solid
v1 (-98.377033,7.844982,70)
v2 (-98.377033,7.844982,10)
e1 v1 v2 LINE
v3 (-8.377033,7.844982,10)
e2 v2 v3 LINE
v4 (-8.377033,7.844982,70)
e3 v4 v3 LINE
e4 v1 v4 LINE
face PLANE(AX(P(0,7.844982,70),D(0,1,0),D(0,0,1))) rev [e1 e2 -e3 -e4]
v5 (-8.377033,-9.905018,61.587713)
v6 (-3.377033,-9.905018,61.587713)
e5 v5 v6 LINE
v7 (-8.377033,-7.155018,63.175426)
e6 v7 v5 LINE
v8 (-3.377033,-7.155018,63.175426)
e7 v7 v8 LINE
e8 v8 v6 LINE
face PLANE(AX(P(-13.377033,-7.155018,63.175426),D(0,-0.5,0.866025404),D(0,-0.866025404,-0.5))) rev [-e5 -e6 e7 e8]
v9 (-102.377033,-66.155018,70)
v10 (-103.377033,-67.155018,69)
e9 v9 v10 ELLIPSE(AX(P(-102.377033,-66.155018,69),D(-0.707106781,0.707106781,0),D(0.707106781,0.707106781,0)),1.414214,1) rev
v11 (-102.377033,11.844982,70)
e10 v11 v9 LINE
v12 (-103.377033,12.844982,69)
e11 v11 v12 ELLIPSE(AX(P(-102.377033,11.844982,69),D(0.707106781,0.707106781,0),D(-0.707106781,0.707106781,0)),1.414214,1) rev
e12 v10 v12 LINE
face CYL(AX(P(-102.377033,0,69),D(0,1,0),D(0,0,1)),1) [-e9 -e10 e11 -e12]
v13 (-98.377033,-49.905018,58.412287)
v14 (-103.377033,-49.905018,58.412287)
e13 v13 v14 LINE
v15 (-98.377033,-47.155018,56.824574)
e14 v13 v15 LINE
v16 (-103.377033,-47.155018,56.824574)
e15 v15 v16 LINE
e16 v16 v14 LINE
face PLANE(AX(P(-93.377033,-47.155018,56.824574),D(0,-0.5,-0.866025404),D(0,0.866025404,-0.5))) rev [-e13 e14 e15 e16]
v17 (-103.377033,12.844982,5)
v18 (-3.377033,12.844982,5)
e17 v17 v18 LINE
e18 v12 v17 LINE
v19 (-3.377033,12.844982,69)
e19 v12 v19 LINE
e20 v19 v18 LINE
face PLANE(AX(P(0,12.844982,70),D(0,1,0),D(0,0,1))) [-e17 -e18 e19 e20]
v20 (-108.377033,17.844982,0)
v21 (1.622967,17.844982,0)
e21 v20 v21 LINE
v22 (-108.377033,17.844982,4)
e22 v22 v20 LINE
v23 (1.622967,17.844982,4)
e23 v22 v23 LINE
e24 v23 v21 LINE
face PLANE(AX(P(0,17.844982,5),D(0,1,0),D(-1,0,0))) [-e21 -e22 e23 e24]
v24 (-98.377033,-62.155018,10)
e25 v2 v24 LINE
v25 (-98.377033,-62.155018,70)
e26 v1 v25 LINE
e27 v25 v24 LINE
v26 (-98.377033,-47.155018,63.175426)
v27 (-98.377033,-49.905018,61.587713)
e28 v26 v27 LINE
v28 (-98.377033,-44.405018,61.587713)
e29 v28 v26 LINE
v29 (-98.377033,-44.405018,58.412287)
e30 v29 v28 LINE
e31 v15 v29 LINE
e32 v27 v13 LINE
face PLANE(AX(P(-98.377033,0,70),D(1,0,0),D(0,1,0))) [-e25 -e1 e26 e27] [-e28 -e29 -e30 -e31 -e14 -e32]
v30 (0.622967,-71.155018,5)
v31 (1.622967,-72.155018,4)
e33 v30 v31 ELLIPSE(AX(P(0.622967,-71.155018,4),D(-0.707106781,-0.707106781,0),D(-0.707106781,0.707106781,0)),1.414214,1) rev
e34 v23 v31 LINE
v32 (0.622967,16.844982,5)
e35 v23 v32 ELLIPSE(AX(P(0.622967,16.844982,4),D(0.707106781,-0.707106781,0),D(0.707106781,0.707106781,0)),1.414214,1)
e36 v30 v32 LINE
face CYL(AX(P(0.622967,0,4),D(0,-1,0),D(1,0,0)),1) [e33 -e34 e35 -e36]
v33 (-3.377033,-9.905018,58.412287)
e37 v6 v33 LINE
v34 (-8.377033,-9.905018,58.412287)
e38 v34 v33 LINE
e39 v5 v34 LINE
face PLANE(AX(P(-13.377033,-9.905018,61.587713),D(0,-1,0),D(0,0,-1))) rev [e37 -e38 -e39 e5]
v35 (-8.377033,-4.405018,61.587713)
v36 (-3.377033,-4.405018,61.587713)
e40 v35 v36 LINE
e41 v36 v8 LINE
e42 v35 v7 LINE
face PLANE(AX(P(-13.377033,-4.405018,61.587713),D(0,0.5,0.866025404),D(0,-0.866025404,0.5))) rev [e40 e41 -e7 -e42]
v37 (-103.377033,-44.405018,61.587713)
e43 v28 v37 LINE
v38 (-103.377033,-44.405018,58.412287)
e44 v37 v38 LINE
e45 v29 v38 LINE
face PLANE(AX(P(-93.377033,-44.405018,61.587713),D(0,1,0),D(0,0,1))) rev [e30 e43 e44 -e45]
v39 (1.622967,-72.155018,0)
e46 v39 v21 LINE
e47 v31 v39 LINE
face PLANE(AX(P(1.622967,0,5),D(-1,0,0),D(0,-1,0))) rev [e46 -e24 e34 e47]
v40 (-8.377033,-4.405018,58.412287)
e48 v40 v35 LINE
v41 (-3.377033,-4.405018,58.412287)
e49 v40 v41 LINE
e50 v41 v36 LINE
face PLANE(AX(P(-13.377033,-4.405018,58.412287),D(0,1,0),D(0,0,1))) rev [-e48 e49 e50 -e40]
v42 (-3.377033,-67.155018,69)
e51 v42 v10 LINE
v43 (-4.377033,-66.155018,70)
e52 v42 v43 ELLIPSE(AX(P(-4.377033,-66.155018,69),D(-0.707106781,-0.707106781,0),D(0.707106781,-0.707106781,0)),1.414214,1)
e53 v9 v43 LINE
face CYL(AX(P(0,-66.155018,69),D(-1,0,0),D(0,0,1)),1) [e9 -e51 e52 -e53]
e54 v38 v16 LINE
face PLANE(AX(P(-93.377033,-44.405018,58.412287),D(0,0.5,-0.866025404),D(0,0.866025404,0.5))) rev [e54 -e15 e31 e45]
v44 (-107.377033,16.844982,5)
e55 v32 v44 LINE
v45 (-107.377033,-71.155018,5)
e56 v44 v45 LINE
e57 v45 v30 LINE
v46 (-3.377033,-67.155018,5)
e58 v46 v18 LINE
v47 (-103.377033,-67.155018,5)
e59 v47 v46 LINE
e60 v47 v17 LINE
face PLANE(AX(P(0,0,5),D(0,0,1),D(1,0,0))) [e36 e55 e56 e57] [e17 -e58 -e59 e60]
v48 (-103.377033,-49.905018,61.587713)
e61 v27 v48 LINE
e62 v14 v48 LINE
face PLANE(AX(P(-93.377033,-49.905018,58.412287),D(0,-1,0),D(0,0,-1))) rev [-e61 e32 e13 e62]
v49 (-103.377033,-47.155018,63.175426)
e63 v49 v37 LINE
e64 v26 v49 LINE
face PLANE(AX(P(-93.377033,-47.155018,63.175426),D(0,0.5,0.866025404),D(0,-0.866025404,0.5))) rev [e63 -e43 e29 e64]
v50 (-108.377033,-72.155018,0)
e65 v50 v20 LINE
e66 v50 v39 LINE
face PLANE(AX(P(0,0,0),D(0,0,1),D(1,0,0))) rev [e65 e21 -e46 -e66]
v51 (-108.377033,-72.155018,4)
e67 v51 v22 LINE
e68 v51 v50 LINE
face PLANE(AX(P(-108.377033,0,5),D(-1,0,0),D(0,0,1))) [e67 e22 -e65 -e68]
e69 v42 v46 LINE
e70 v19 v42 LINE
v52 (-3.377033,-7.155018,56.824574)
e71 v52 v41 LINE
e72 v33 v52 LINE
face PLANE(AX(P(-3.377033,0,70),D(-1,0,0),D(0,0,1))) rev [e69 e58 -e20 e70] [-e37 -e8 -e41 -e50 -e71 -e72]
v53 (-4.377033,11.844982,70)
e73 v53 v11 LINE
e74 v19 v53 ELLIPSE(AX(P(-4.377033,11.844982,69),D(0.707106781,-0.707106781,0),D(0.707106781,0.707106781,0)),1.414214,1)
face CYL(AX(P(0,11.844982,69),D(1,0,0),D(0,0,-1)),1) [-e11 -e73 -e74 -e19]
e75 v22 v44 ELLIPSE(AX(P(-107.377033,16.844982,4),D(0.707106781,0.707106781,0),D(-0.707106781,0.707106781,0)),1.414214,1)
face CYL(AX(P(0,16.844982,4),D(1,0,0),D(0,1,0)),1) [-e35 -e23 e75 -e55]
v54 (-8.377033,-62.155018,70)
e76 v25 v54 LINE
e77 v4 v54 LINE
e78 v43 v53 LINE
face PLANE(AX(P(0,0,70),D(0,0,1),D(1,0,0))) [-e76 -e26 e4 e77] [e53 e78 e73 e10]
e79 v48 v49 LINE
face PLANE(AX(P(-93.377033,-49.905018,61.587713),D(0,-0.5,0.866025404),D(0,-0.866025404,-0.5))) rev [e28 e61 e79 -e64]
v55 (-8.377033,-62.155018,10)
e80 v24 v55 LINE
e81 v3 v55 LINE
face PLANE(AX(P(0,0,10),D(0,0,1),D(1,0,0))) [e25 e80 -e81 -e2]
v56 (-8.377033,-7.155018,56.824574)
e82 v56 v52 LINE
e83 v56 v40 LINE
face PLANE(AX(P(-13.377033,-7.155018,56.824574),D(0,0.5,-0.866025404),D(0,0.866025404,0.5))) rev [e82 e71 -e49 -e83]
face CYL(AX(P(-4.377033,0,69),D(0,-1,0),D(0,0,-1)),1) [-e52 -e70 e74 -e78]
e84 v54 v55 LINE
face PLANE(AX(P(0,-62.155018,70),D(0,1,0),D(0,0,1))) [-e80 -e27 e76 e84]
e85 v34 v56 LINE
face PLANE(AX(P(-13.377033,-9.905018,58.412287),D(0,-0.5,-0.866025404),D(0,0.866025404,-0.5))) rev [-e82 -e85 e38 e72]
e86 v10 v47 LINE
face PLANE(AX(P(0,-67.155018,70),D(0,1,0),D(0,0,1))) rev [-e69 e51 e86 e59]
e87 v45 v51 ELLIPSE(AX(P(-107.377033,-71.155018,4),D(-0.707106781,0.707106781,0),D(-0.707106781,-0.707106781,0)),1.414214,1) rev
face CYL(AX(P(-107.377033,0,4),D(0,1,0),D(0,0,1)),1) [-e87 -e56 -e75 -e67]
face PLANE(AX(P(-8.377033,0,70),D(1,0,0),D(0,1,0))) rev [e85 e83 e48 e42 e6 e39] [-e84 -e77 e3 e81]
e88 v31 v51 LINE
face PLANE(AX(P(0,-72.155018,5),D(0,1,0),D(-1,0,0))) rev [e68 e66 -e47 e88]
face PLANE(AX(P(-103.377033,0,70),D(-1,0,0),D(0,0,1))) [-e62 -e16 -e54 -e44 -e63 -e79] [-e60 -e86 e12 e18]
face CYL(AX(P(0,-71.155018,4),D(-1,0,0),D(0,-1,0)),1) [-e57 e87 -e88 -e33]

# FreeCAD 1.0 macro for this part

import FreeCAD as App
import Part
import Sketcher
Q = App.Units.Quantity


def edges_at(feature, points):
    """Names of the edges that pass closest to the given points."""
    edges = feature.Shape.Edges
    near = lambda p: min(range(len(edges)), key=lambda i: edges[i].distToShape(Part.Vertex(*p))[0])
    return sorted({f"Edge{near(p) + 1}" for p in points})

doc = App.newDocument("Part")
body = doc.addObject("PartDesign::Body", "Body")

# Sketch on XY plane
sketch1 = body.newObject("Sketcher::SketchObject", "Sketch")
sketch1.AttachmentSupport = (doc.getObject("XY_Plane"), [""])
sketch1.MapMode = "FlatFace"
sketch1.addGeometry(Part.LineSegment(App.Vector(-108, 18, 0), App.Vector(-108, -72, 0)), False)
sketch1.addGeometry(Part.LineSegment(App.Vector(-108, -72, 0), App.Vector(2, -72, 0)), False)
sketch1.addGeometry(Part.LineSegment(App.Vector(2, -72, 0), App.Vector(2, 18, 0)), False)
sketch1.addGeometry(Part.LineSegment(App.Vector(2, 18, 0), App.Vector(-108, 18, 0)), False)
sketch1.addGeometry(Part.LineSegment(App.Vector(-3, -67, 0), App.Vector(-103, -67, 0)), False)
sketch1.addGeometry(Part.LineSegment(App.Vector(-103, -67, 0), App.Vector(-103, 13, 0)), False)
sketch1.addGeometry(Part.LineSegment(App.Vector(-103, 13, 0), App.Vector(-3, 13, 0)), False)
sketch1.addGeometry(Part.LineSegment(App.Vector(-3, 13, 0), App.Vector(-3, -67, 0)), False)
sketch1.addConstraint(Sketcher.Constraint("Coincident", 0, 2, 1, 1))
sketch1.addConstraint(Sketcher.Constraint("Coincident", 1, 2, 2, 1))
sketch1.addConstraint(Sketcher.Constraint("Coincident", 2, 2, 3, 1))
sketch1.addConstraint(Sketcher.Constraint("Coincident", 3, 2, 0, 1))
sketch1.addConstraint(Sketcher.Constraint("Coincident", 4, 2, 5, 1))
sketch1.addConstraint(Sketcher.Constraint("Coincident", 5, 2, 6, 1))
sketch1.addConstraint(Sketcher.Constraint("Coincident", 6, 2, 7, 1))
sketch1.addConstraint(Sketcher.Constraint("Coincident", 7, 2, 4, 1))
sketch1.addConstraint(Sketcher.Constraint("Vertical", 0))
sketch1.addConstraint(Sketcher.Constraint("Horizontal", 1))
sketch1.addConstraint(Sketcher.Constraint("Vertical", 2))
sketch1.addConstraint(Sketcher.Constraint("Horizontal", 3))
sketch1.addConstraint(Sketcher.Constraint("Horizontal", 4))
sketch1.addConstraint(Sketcher.Constraint("Vertical", 5))
sketch1.addConstraint(Sketcher.Constraint("Horizontal", 6))
sketch1.addConstraint(Sketcher.Constraint("Vertical", 7))
sketch1.addConstraint(Sketcher.Constraint("DistanceX", 1, 1, 1, 2, Q("110 mm")))
sketch1.addConstraint(Sketcher.Constraint("DistanceX", 4, 2, 4, 1, Q("100 mm")))
sketch1.addConstraint(Sketcher.Constraint("DistanceY", 0, 2, 0, 1, Q("90 mm")))
sketch1.addConstraint(Sketcher.Constraint("DistanceY", 5, 1, 5, 2, Q("80 mm")))
sketch1.addConstraint(Sketcher.Constraint("DistanceX", 0, 2, 4, 2, Q("5 mm")))
sketch1.addConstraint(Sketcher.Constraint("DistanceY", 0, 2, 4, 2, Q("5 mm")))
sketch1.addConstraint(Sketcher.Constraint("DistanceY", 0, 2, -1, 1, Q("72.155018 mm")))
sketch1.addConstraint(Sketcher.Constraint("DistanceX", 0, 2, -1, 1, Q("108.377033 mm")))
pad1 = body.newObject("PartDesign::Pad", "Pad")
pad1.Profile = sketch1
pad1.Length = 5

# Sketch on XY plane
sketch2 = body.newObject("Sketcher::SketchObject", "Sketch001")
sketch2.AttachmentSupport = (doc.getObject("XY_Plane"), [""])
sketch2.MapMode = "FlatFace"
sketch2.addGeometry(Part.LineSegment(App.Vector(-103, 13, 0), App.Vector(-103, -67, 0)), False)
sketch2.addGeometry(Part.LineSegment(App.Vector(-103, -67, 0), App.Vector(-3, -67, 0)), False)
sketch2.addGeometry(Part.LineSegment(App.Vector(-3, -67, 0), App.Vector(-3, 13, 0)), False)
sketch2.addGeometry(Part.LineSegment(App.Vector(-3, 13, 0), App.Vector(-103, 13, 0)), False)
sketch2.addGeometry(Part.LineSegment(App.Vector(-8, -62, 0), App.Vector(-98, -62, 0)), False)
sketch2.addGeometry(Part.LineSegment(App.Vector(-98, -62, 0), App.Vector(-98, 8, 0)), False)
sketch2.addGeometry(Part.LineSegment(App.Vector(-98, 8, 0), App.Vector(-8, 8, 0)), False)
sketch2.addGeometry(Part.LineSegment(App.Vector(-8, 8, 0), App.Vector(-8, -62, 0)), False)
sketch2.addConstraint(Sketcher.Constraint("Coincident", 0, 2, 1, 1))
sketch2.addConstraint(Sketcher.Constraint("Coincident", 1, 2, 2, 1))
sketch2.addConstraint(Sketcher.Constraint("Coincident", 2, 2, 3, 1))
sketch2.addConstraint(Sketcher.Constraint("Coincident", 3, 2, 0, 1))
sketch2.addConstraint(Sketcher.Constraint("Coincident", 4, 2, 5, 1))
sketch2.addConstraint(Sketcher.Constraint("Coincident", 5, 2, 6, 1))
sketch2.addConstraint(Sketcher.Constraint("Coincident", 6, 2, 7, 1))
sketch2.addConstraint(Sketcher.Constraint("Coincident", 7, 2, 4, 1))
sketch2.addConstraint(Sketcher.Constraint("Vertical", 0))
sketch2.addConstraint(Sketcher.Constraint("Horizontal", 1))
sketch2.addConstraint(Sketcher.Constraint("Vertical", 2))
sketch2.addConstraint(Sketcher.Constraint("Horizontal", 3))
sketch2.addConstraint(Sketcher.Constraint("Horizontal", 4))
sketch2.addConstraint(Sketcher.Constraint("Vertical", 5))
sketch2.addConstraint(Sketcher.Constraint("Horizontal", 6))
sketch2.addConstraint(Sketcher.Constraint("Vertical", 7))
sketch2.addConstraint(Sketcher.Constraint("DistanceX", 1, 1, 1, 2, Q("100 mm")))
sketch2.addConstraint(Sketcher.Constraint("DistanceX", 4, 2, 4, 1, Q("90 mm")))
sketch2.addConstraint(Sketcher.Constraint("DistanceY", 0, 2, 0, 1, Q("80 mm")))
sketch2.addConstraint(Sketcher.Constraint("DistanceY", 5, 1, 5, 2, Q("70 mm")))
sketch2.addConstraint(Sketcher.Constraint("DistanceX", 0, 2, 4, 2, Q("5 mm")))
sketch2.addConstraint(Sketcher.Constraint("DistanceY", 0, 2, 4, 2, Q("5 mm")))
sketch2.addConstraint(Sketcher.Constraint("DistanceY", 0, 2, -1, 1, Q("67.155018 mm")))
sketch2.addConstraint(Sketcher.Constraint("DistanceX", 0, 2, -1, 1, Q("103.377033 mm")))
pad2 = body.newObject("PartDesign::Pad", "Pad001")
pad2.Profile = sketch2
pad2.Length = 70

# Sketch on XY plane
sketch3 = body.newObject("Sketcher::SketchObject", "Sketch002")
sketch3.AttachmentSupport = (doc.getObject("XY_Plane"), [""])
sketch3.MapMode = "FlatFace"
sketch3.addGeometry(Part.LineSegment(App.Vector(-98, 8, 0), App.Vector(-98, -62, 0)), False)
sketch3.addGeometry(Part.LineSegment(App.Vector(-98, -62, 0), App.Vector(-8, -62, 0)), False)
sketch3.addGeometry(Part.LineSegment(App.Vector(-8, -62, 0), App.Vector(-8, 8, 0)), False)
sketch3.addGeometry(Part.LineSegment(App.Vector(-8, 8, 0), App.Vector(-98, 8, 0)), False)
sketch3.addConstraint(Sketcher.Constraint("Coincident", 0, 2, 1, 1))
sketch3.addConstraint(Sketcher.Constraint("Coincident", 1, 2, 2, 1))
sketch3.addConstraint(Sketcher.Constraint("Coincident", 2, 2, 3, 1))
sketch3.addConstraint(Sketcher.Constraint("Coincident", 3, 2, 0, 1))
sketch3.addConstraint(Sketcher.Constraint("Vertical", 0))
sketch3.addConstraint(Sketcher.Constraint("Horizontal", 1))
sketch3.addConstraint(Sketcher.Constraint("Vertical", 2))
sketch3.addConstraint(Sketcher.Constraint("Horizontal", 3))
sketch3.addConstraint(Sketcher.Constraint("DistanceX", 1, 1, 1, 2, Q("90 mm")))
sketch3.addConstraint(Sketcher.Constraint("DistanceY", 0, 2, 0, 1, Q("70 mm")))
sketch3.addConstraint(Sketcher.Constraint("DistanceY", 0, 2, -1, 1, Q("62.155018 mm")))
sketch3.addConstraint(Sketcher.Constraint("DistanceX", 0, 2, -1, 1, Q("98.377033 mm")))
pad3 = body.newObject("PartDesign::Pad", "Pad002")
pad3.Profile = sketch3
pad3.Length = 10

# Sketch on YZ plane
sketch4 = body.newObject("Sketcher::SketchObject", "Sketch003")
sketch4.AttachmentSupport = (doc.getObject("YZ_Plane"), [""])
sketch4.MapMode = "FlatFace"
sketch4.AttachmentOffset = App.Placement(App.Vector(0, 0, -3.377033), App.Rotation())
sketch4.addGeometry(Part.LineSegment(App.Vector(-7.2, 56.8, 0), App.Vector(-4.4, 58.4, 0)), False)
sketch4.addGeometry(Part.LineSegment(App.Vector(-4.4, 58.4, 0), App.Vector(-4.4, 61.6, 0)), False)
sketch4.addGeometry(Part.LineSegment(App.Vector(-4.4, 61.6, 0), App.Vector(-7.2, 63.2, 0)), False)
sketch4.addGeometry(Part.LineSegment(App.Vector(-7.2, 63.2, 0), App.Vector(-9.9, 61.6, 0)), False)
sketch4.addGeometry(Part.LineSegment(App.Vector(-9.9, 61.6, 0), App.Vector(-9.9, 58.4, 0)), False)
sketch4.addGeometry(Part.LineSegment(App.Vector(-9.9, 58.4, 0), App.Vector(-7.2, 56.8, 0)), False)
sketch4.addConstraint(Sketcher.Constraint("Coincident", 0, 2, 1, 1))
sketch4.addConstraint(Sketcher.Constraint("Coincident", 1, 2, 2, 1))
sketch4.addConstraint(Sketcher.Constraint("Coincident", 2, 2, 3, 1))
sketch4.addConstraint(Sketcher.Constraint("Coincident", 3, 2, 4, 1))
sketch4.addConstraint(Sketcher.Constraint("Coincident", 4, 2, 5, 1))
sketch4.addConstraint(Sketcher.Constraint("Coincident", 5, 2, 0, 1))
sketch4.addConstraint(Sketcher.Constraint("Vertical", 1))
sketch4.addConstraint(Sketcher.Constraint("Vertical", 4))
sketch4.addConstraint(Sketcher.Constraint("Parallel", 0, 3))
sketch4.addConstraint(Sketcher.Constraint("Parallel", 2, 5))
sketch4.addConstraint(Sketcher.Constraint("Horizontal", 1, 2, 3, 2))
sketch4.addConstraint(Sketcher.Constraint("Horizontal", 0, 2, 4, 2))
sketch4.addConstraint(Sketcher.Constraint("Vertical", 2, 2, 5, 2))
sketch4.addConstraint(Sketcher.Constraint("Angle", 0, Q("30 deg")))
sketch4.addConstraint(Sketcher.Constraint("DistanceX", 3, 2, 1, 2, Q("5.5 mm")))
sketch4.addConstraint(Sketcher.Constraint("DistanceY", 1, 1, 1, 2, Q("3.175426 mm")))
sketch4.addConstraint(Sketcher.Constraint("DistanceX", 0, 2, -1, 1, Q("4.405018 mm")))
sketch4.addConstraint(Sketcher.Constraint("DistanceY", -1, 1, 0, 2, Q("58.412287 mm")))
pocket1 = body.newObject("PartDesign::Pocket", "Pocket")
pocket1.Profile = sketch4
pocket1.Length = 10

# Sketch on YZ plane
sketch5 = body.newObject("Sketcher::SketchObject", "Sketch004")
sketch5.AttachmentSupport = (doc.getObject("YZ_Plane"), [""])
sketch5.MapMode = "FlatFace"
sketch5.AttachmentOffset = App.Placement(App.Vector(0, 0, -103.377033), App.Rotation())
sketch5.addGeometry(Part.LineSegment(App.Vector(-47.2, 63.2, 0), App.Vector(-44.4, 61.6, 0)), False)
sketch5.addGeometry(Part.LineSegment(App.Vector(-44.4, 61.6, 0), App.Vector(-44.4, 58.4, 0)), False)
sketch5.addGeometry(Part.LineSegment(App.Vector(-44.4, 58.4, 0), App.Vector(-47.2, 56.8, 0)), False)
sketch5.addGeometry(Part.LineSegment(App.Vector(-47.2, 56.8, 0), App.Vector(-49.9, 58.4, 0)), False)
sketch5.addGeometry(Part.LineSegment(App.Vector(-49.9, 58.4, 0), App.Vector(-49.9, 61.6, 0)), False)
sketch5.addGeometry(Part.LineSegment(App.Vector(-49.9, 61.6, 0), App.Vector(-47.2, 63.2, 0)), False)
sketch5.addConstraint(Sketcher.Constraint("Coincident", 0, 2, 1, 1))
sketch5.addConstraint(Sketcher.Constraint("Coincident", 1, 2, 2, 1))
sketch5.addConstraint(Sketcher.Constraint("Coincident", 2, 2, 3, 1))
sketch5.addConstraint(Sketcher.Constraint("Coincident", 3, 2, 4, 1))
sketch5.addConstraint(Sketcher.Constraint("Coincident", 4, 2, 5, 1))
sketch5.addConstraint(Sketcher.Constraint("Coincident", 5, 2, 0, 1))
sketch5.addConstraint(Sketcher.Constraint("Vertical", 1))
sketch5.addConstraint(Sketcher.Constraint("Vertical", 4))
sketch5.addConstraint(Sketcher.Constraint("Parallel", 0, 3))
sketch5.addConstraint(Sketcher.Constraint("Parallel", 2, 5))
sketch5.addConstraint(Sketcher.Constraint("Horizontal", 1, 2, 3, 2))
sketch5.addConstraint(Sketcher.Constraint("Horizontal", 0, 2, 4, 2))
sketch5.addConstraint(Sketcher.Constraint("Vertical", 2, 2, 5, 2))
sketch5.addConstraint(Sketcher.Constraint("Angle", 0, Q("-30 deg")))
sketch5.addConstraint(Sketcher.Constraint("DistanceX", 3, 2, 1, 2, Q("5.5 mm")))
sketch5.addConstraint(Sketcher.Constraint("DistanceY", 1, 2, 1, 1, Q("3.175426 mm")))
sketch5.addConstraint(Sketcher.Constraint("DistanceX", 0, 2, -1, 1, Q("44.405018 mm")))
sketch5.addConstraint(Sketcher.Constraint("DistanceY", -1, 1, 0, 2, Q("61.587713 mm")))
pocket2 = body.newObject("PartDesign::Pocket", "Pocket001")
pocket2.Profile = sketch5
pocket2.Length = 10
pocket2.Reversed = True
doc.recompute()

fillet = body.newObject("PartDesign::Fillet", "Fillet")
fillet.Base = (pocket2, edges_at(pocket2, [
    (-53.377, 12.845, 70),
    (-103.377, -27.155, 70),
    (-53.377, -67.155, 70),
    (-3.377, -27.155, 70),
]))
fillet.Radius = 1
doc.recompute()

fillet2 = body.newObject("PartDesign::Fillet", "Fillet001")
fillet2.Base = (fillet, edges_at(fillet, [
    (-53.377, -72.155, 5),
    (1.623, -27.155, 5),
    (-53.377, 17.845, 5),
    (-108.377, -27.155, 5),
]))
fillet2.Radius = 1

doc.recompute()
